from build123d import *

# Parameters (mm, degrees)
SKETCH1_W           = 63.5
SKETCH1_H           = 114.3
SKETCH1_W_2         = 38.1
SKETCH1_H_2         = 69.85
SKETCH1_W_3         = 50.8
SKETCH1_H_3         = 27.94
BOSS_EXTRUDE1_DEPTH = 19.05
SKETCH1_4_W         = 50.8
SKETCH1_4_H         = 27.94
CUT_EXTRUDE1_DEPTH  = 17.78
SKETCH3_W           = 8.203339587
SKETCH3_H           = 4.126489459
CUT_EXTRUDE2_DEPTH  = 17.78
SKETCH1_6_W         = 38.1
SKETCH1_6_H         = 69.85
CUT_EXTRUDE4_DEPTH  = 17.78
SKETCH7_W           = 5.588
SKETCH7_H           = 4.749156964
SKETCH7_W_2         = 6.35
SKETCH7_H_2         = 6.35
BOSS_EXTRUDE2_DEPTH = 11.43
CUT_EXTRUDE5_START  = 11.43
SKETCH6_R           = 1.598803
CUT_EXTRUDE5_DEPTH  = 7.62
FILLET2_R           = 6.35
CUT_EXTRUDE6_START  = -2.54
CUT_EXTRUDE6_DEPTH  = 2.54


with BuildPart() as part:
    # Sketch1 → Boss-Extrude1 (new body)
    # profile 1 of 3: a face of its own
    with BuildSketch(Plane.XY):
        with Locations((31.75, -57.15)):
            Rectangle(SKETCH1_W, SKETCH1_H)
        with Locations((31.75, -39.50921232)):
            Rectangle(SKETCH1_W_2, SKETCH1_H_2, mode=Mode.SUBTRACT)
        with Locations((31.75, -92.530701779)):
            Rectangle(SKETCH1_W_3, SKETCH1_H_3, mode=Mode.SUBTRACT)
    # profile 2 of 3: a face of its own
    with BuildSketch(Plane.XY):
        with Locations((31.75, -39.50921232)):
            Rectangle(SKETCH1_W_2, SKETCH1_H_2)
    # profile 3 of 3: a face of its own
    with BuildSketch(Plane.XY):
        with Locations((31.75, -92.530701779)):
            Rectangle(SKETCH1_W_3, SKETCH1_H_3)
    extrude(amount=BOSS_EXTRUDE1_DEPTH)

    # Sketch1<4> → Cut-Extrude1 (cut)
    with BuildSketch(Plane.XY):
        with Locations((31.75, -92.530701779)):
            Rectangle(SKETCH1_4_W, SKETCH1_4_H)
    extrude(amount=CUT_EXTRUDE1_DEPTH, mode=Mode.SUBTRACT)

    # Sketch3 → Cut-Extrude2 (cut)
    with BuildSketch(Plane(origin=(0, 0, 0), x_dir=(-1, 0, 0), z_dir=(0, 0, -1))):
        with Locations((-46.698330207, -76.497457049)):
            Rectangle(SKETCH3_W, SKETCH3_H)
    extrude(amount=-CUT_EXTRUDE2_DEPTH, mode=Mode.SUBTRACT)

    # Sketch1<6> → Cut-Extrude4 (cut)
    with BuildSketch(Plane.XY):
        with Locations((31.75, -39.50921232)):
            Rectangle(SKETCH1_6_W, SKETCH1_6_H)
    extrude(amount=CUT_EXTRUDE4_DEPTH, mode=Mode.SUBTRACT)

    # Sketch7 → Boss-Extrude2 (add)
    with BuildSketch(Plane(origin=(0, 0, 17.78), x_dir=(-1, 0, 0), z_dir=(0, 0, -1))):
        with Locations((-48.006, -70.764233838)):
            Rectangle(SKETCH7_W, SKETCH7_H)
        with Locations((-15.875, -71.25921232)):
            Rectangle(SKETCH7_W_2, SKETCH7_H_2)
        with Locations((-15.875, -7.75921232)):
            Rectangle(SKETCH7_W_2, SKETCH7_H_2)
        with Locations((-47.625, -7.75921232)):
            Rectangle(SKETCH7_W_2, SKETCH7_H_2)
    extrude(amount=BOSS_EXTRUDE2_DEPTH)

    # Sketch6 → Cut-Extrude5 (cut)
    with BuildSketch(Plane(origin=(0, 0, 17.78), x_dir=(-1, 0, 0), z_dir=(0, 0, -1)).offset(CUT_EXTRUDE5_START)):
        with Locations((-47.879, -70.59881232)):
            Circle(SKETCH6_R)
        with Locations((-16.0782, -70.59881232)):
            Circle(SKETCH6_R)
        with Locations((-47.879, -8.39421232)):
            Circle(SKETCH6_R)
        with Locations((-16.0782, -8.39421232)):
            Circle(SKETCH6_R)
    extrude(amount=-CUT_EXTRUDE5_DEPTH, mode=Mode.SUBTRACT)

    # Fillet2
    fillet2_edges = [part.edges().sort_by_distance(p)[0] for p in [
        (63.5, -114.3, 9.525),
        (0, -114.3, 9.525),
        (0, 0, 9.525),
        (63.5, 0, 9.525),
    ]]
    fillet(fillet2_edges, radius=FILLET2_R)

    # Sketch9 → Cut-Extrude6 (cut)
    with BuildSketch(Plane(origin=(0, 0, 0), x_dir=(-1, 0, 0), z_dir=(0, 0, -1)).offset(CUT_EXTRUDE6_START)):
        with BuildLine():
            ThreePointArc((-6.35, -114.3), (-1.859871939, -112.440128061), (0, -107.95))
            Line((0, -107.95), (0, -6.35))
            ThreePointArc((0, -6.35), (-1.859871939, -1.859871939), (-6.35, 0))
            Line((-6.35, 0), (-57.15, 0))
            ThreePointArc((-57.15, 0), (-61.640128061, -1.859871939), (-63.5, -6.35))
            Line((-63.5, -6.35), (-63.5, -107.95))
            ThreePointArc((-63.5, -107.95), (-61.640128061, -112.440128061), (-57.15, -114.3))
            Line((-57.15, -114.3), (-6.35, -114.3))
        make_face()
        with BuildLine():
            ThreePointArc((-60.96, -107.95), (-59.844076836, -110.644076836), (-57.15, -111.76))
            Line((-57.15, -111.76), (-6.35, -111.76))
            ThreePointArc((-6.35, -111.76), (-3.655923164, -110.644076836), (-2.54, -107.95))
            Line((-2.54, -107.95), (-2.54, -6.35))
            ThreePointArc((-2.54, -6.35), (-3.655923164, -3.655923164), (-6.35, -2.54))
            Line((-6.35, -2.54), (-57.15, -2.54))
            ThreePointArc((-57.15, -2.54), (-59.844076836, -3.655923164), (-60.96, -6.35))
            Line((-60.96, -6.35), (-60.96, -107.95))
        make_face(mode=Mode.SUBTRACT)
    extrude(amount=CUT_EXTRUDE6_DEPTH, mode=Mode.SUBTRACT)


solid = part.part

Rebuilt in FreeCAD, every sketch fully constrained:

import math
import FreeCAD as App
import Part
import Sketcher

V = App.Vector
Q = App.Units.Quantity


def edges_at(feature, points):
    """Names of the edges that pass closest to the given points."""
    edges = feature.Shape.Edges
    near = lambda p: min(range(len(edges)), key=lambda i: edges[i].distToShape(Part.Vertex(*p))[0])
    return sorted({f"Edge{near(p) + 1}" for p in points})

doc = App.newDocument("Part")
params = doc.addObject("Spreadsheet::Sheet", "Params")
for row, (alias, value) in enumerate([
    ("sketch1_width", "2.5 in"),
    ("sketch1_height", "4.5 in"),
    ("pad1_length", "0.75 in"),
    ("sketch2_width", "2 in"),
    ("sketch2_height", "1.1 in"),
    ("pocket1_length", "0.7 in"),
    ("pocket2_length", "0.7 in"),
    ("sketch4_width", "1.5 in"),
    ("sketch4_height", "2.75 in"),
    ("pocket3_length", "0.7 in"),
    ("sketch5_width", "0.22 in"),
    ("sketch5_width2", "0.25 in"),
    ("pad2_length", "0.45 in"),
    ("pocket4_length", "0.3 in"),
    ("fillet_radius", "0.25 in"),
    ("sketch7_width", "2 in"),
    ("sketch7_height", "4 in"),
    ("sketch7_radius", "0.25 in"),
    ("sketch7_radius2", "0.15 in"),
    ("pocket5_length", "0.1 in"),
], start=1):
    params.set(f"A{row}", alias)
    params.set(f"B{row}", "=" + value)
    params.setAlias(f"B{row}", alias)

body = doc.addObject("PartDesign::Body", "Body")

# Sketch on XY plane
sketch1 = doc.addObject("Sketcher::SketchObject", "Sketch")
body.addObject(sketch1)
sketch1.AttachmentSupport = (doc.XY_Plane, [""])
sketch1.MapMode = "FlatFace"
sketch1.addGeometry([
    Part.LineSegment(V(0, 0, 0), V(0, -114.3, 0)),
    Part.LineSegment(V(0, -114.3, 0), V(63.5, -114.3, 0)),
    Part.LineSegment(V(63.5, -114.3, 0), V(63.5, 0, 0)),
    Part.LineSegment(V(63.5, 0, 0), V(0, 0, 0)),
], False)
sketch1.addConstraint([
    Sketcher.Constraint("Coincident", 0, 2, 1, 1),
    Sketcher.Constraint("Coincident", 1, 2, 2, 1),
    Sketcher.Constraint("Coincident", 2, 2, 3, 1),
    Sketcher.Constraint("Coincident", 3, 2, 0, 1),
    Sketcher.Constraint("Vertical", 0),
    Sketcher.Constraint("Horizontal", 1),
    Sketcher.Constraint("Vertical", 2),
    Sketcher.Constraint("Horizontal", 3),
    Sketcher.Constraint("Coincident", 3, 2, -1, 1),
    Sketcher.Constraint("DistanceX", 1, 1, 1, 2, Q("2.5 in")),
    Sketcher.Constraint("DistanceY", 0, 2, 0, 1, Q("4.5 in")),
])
sketch1.setExpression("Constraints[9]", "Params.sketch1_width")
sketch1.setExpression("Constraints[10]", "Params.sketch1_height")
pad1 = doc.addObject("PartDesign::Pad", "Pad")
body.addObject(pad1)
pad1.Profile = sketch1
pad1.setExpression("Length", "Params.pad1_length")

# Sketch on XY plane
sketch2 = doc.addObject("Sketcher::SketchObject", "Sketch001")
body.addObject(sketch2)
sketch2.AttachmentSupport = (doc.XY_Plane, [""])
sketch2.MapMode = "FlatFace"
sketch2.addGeometry([
    Part.LineSegment(V(6.35, -78.560702, 0), V(6.35, -106.500702, 0)),
    Part.LineSegment(V(6.35, -106.500702, 0), V(57.15, -106.500702, 0)),
    Part.LineSegment(V(57.15, -106.500702, 0), V(57.15, -78.560702, 0)),
    Part.LineSegment(V(57.15, -78.560702, 0), V(6.35, -78.560702, 0)),
], False)
sketch2.addConstraint([
    Sketcher.Constraint("Coincident", 0, 2, 1, 1),
    Sketcher.Constraint("Coincident", 1, 2, 2, 1),
    Sketcher.Constraint("Coincident", 2, 2, 3, 1),
    Sketcher.Constraint("Coincident", 3, 2, 0, 1),
    Sketcher.Constraint("Vertical", 0),
    Sketcher.Constraint("Horizontal", 1),
    Sketcher.Constraint("Vertical", 2),
    Sketcher.Constraint("Horizontal", 3),
    Sketcher.Constraint("DistanceX", 1, 1, 1, 2, Q("2 in")),
    Sketcher.Constraint("DistanceY", 0, 2, 0, 1, Q("1.1 in")),
    Sketcher.Constraint("DistanceX", -1, 1, 0, 2, Q("0.25 in")),
    Sketcher.Constraint("DistanceY", 0, 2, -1, 1, Q("106.500702 mm")),
])
sketch2.setExpression("Constraints[8]", "Params.sketch2_width")
sketch2.setExpression("Constraints[9]", "Params.sketch2_height")
pocket1 = doc.addObject("PartDesign::Pocket", "Pocket")
body.addObject(pocket1)
pocket1.Profile = sketch2
pocket1.setExpression("Length", "Params.pocket1_length")
pocket1.Reversed = True

# Sketch on XY plane
sketch3 = doc.addObject("Sketcher::SketchObject", "Sketch002")
body.addObject(sketch3)
sketch3.AttachmentSupport = (doc.XY_Plane, [""])
sketch3.MapMode = "FlatFace"
sketch3.addGeometry([
    Part.LineSegment(V(50.8, -74.434212, 0), V(50.8, -78.560702, 0)),
    Part.LineSegment(V(50.8, -78.560702, 0), V(42.59666, -78.560702, 0)),
    Part.LineSegment(V(42.59666, -78.560702, 0), V(42.59666, -74.434212, 0)),
    Part.LineSegment(V(42.59666, -74.434212, 0), V(50.8, -74.434212, 0)),
], False)
sketch3.addConstraint([
    Sketcher.Constraint("Coincident", 0, 2, 1, 1),
    Sketcher.Constraint("Coincident", 1, 2, 2, 1),
    Sketcher.Constraint("Coincident", 2, 2, 3, 1),
    Sketcher.Constraint("Coincident", 3, 2, 0, 1),
    Sketcher.Constraint("Vertical", 0),
    Sketcher.Constraint("Horizontal", 1),
    Sketcher.Constraint("Vertical", 2),
    Sketcher.Constraint("Horizontal", 3),
    Sketcher.Constraint("DistanceX", -1, 1, 0, 2, Q("2 in")),
    Sketcher.Constraint("DistanceX", 1, 2, 1, 1, Q("8.20334 mm")),
    Sketcher.Constraint("DistanceY", 0, 2, 0, 1, Q("4.126489 mm")),
    Sketcher.Constraint("DistanceY", 0, 2, -1, 1, Q("78.560702 mm")),
])
pocket2 = doc.addObject("PartDesign::Pocket", "Pocket001")
body.addObject(pocket2)
pocket2.Profile = sketch3
pocket2.setExpression("Length", "Params.pocket2_length")
pocket2.Reversed = True

# Sketch on XY plane
sketch4 = doc.addObject("Sketcher::SketchObject", "Sketch003")
body.addObject(sketch4)
sketch4.AttachmentSupport = (doc.XY_Plane, [""])
sketch4.MapMode = "FlatFace"
sketch4.addGeometry([
    Part.LineSegment(V(12.7, -4.584212, 0), V(12.7, -74.434212, 0)),
    Part.LineSegment(V(12.7, -74.434212, 0), V(50.8, -74.434212, 0)),
    Part.LineSegment(V(50.8, -74.434212, 0), V(50.8, -4.584212, 0)),
    Part.LineSegment(V(50.8, -4.584212, 0), V(12.7, -4.584212, 0)),
], False)
sketch4.addConstraint([
    Sketcher.Constraint("Coincident", 0, 2, 1, 1),
    Sketcher.Constraint("Coincident", 1, 2, 2, 1),
    Sketcher.Constraint("Coincident", 2, 2, 3, 1),
    Sketcher.Constraint("Coincident", 3, 2, 0, 1),
    Sketcher.Constraint("Vertical", 0),
    Sketcher.Constraint("Horizontal", 1),
    Sketcher.Constraint("Vertical", 2),
    Sketcher.Constraint("Horizontal", 3),
    Sketcher.Constraint("DistanceX", 1, 1, 1, 2, Q("1.5 in")),
    Sketcher.Constraint("DistanceX", -1, 1, 1, 2, Q("2 in")),
    Sketcher.Constraint("DistanceY", 0, 2, 0, 1, Q("2.75 in")),
    Sketcher.Constraint("DistanceY", 0, 2, -1, 1, Q("74.434212 mm")),
])
sketch4.setExpression("Constraints[8]", "Params.sketch4_width")
sketch4.setExpression("Constraints[10]", "Params.sketch4_height")
pocket3 = doc.addObject("PartDesign::Pocket", "Pocket002")
body.addObject(pocket3)
pocket3.Profile = sketch4
pocket3.setExpression("Length", "Params.pocket3_length")
pocket3.Reversed = True

# Sketch on XY plane
sketch5 = doc.addObject("Sketcher::SketchObject", "Sketch004")
body.addObject(sketch5)
sketch5.AttachmentSupport = (doc.XY_Plane, [""])
sketch5.MapMode = "FlatFace"
sketch5.AttachmentOffset = App.Placement(V(0, 0, 0.7 * 25.4), App.Rotation())
sketch5.addGeometry([
    Part.LineSegment(V(50.8, -68.389655, 0), V(50.8, -73.138812, 0)),  # 0
    Part.LineSegment(V(50.8, -73.138812, 0), V(45.212, -73.138812, 0)),  # 1
    Part.LineSegment(V(45.212, -73.138812, 0), V(45.212, -68.389655, 0)),  # 2
    Part.LineSegment(V(45.212, -68.389655, 0), V(50.8, -68.389655, 0)),  # 3
    Part.LineSegment(V(19.05, -68.084212, 0), V(19.05, -74.434212, 0)),  # 4
    Part.LineSegment(V(19.05, -74.434212, 0), V(12.7, -74.434212, 0)),  # 5
    Part.LineSegment(V(12.7, -74.434212, 0), V(12.7, -68.084212, 0)),  # 6
    Part.LineSegment(V(12.7, -68.084212, 0), V(19.05, -68.084212, 0)),  # 7
    Part.LineSegment(V(19.05, -4.584212, 0), V(19.05, -10.934212, 0)),  # 8
    Part.LineSegment(V(19.05, -10.934212, 0), V(12.7, -10.934212, 0)),  # 9
    Part.LineSegment(V(12.7, -10.934212, 0), V(12.7, -4.584212, 0)),  # 10
    Part.LineSegment(V(12.7, -4.584212, 0), V(19.05, -4.584212, 0)),  # 11
    Part.LineSegment(V(50.8, -4.584212, 0), V(50.8, -10.934212, 0)),  # 12
    Part.LineSegment(V(50.8, -10.934212, 0), V(44.45, -10.934212, 0)),  # 13
    Part.LineSegment(V(44.45, -10.934212, 0), V(44.45, -4.584212, 0)),  # 14
    Part.LineSegment(V(44.45, -4.584212, 0), V(50.8, -4.584212, 0)),  # 15
], False)
sketch5.addConstraint([
    Sketcher.Constraint("Coincident", 0, 2, 1, 1),
    Sketcher.Constraint("Coincident", 1, 2, 2, 1),
    Sketcher.Constraint("Coincident", 2, 2, 3, 1),
    Sketcher.Constraint("Coincident", 3, 2, 0, 1),
    Sketcher.Constraint("Coincident", 4, 2, 5, 1),
    Sketcher.Constraint("Coincident", 5, 2, 6, 1),
    Sketcher.Constraint("Coincident", 6, 2, 7, 1),
    Sketcher.Constraint("Coincident", 7, 2, 4, 1),
    Sketcher.Constraint("Coincident", 8, 2, 9, 1),
    Sketcher.Constraint("Coincident", 9, 2, 10, 1),
    Sketcher.Constraint("Coincident", 10, 2, 11, 1),
    Sketcher.Constraint("Coincident", 11, 2, 8, 1),
    Sketcher.Constraint("Coincident", 12, 2, 13, 1),
    Sketcher.Constraint("Coincident", 13, 2, 14, 1),
    Sketcher.Constraint("Coincident", 14, 2, 15, 1),
    Sketcher.Constraint("Coincident", 15, 2, 12, 1),
    Sketcher.Constraint("Vertical", 0),
    Sketcher.Constraint("Horizontal", 1),
    Sketcher.Constraint("Vertical", 2),
    Sketcher.Constraint("Horizontal", 3),
    Sketcher.Constraint("Vertical", 4),
    Sketcher.Constraint("Horizontal", 5),
    Sketcher.Constraint("Vertical", 6),
    Sketcher.Constraint("Horizontal", 7),
    Sketcher.Constraint("Vertical", 8),
    Sketcher.Constraint("Horizontal", 9),
    Sketcher.Constraint("Vertical", 10),
    Sketcher.Constraint("Horizontal", 11),
    Sketcher.Constraint("Vertical", 12),
    Sketcher.Constraint("Horizontal", 13),
    Sketcher.Constraint("Vertical", 14),
    Sketcher.Constraint("Horizontal", 15),
    Sketcher.Constraint("Horizontal", 9, 2, 12, 2),
    Sketcher.Constraint("Horizontal", 11, 2, 14, 2),
    Sketcher.Constraint("Vertical", 7, 2, 8, 2),
    Sketcher.Constraint("Vertical", 6, 2, 9, 2),
    Sketcher.Constraint("Vertical", 3, 2, 12, 2),
    Sketcher.Constraint("Equal", 11, 13),
    Sketcher.Constraint("Equal", 15, 4),
    Sketcher.Constraint("Equal", 6, 8),
    Sketcher.Constraint("DistanceX", -1, 1, 0, 2, Q("2 in")),
    Sketcher.Constraint("DistanceX", 8, 2, 13, 2, Q("1 in")),
    Sketcher.Constraint("DistanceX", 1, 2, 1, 1, Q("0.22 in")),
    Sketcher.Constraint("DistanceX", 5, 2, 5, 1, Q("0.25 in")),
    Sketcher.Constraint("DistanceY", 4, 2, 8, 2, Q("2.5 in")),
    Sketcher.Constraint("DistanceY", 4, 2, 1, 2, Q("0.051 in")),
    Sketcher.Constraint("DistanceY", 0, 2, 0, 1, Q("4.749157 mm")),
    Sketcher.Constraint("DistanceY", 0, 2, -1, 1, Q("73.138812 mm")),
])
sketch5.setExpression("Constraints[42]", "Params.sketch5_width")
sketch5.setExpression("Constraints[43]", "Params.sketch5_width2")
pad2 = doc.addObject("PartDesign::Pad", "Pad001")
body.addObject(pad2)
pad2.Profile = sketch5
pad2.setExpression("Length", "Params.pad2_length")
pad2.Reversed = True

# Sketch on XY plane
sketch6 = doc.addObject("Sketcher::SketchObject", "Sketch005")
body.addObject(sketch6)
sketch6.AttachmentSupport = (doc.XY_Plane, [""])
sketch6.MapMode = "FlatFace"
sketch6.AttachmentOffset = App.Placement(V(0, 0, 0.25 * 25.4), App.Rotation())
sketch6.addGeometry([
    Part.Circle(V(47.879, -70.598812, 0), V(0, 0, 1), 1.598803),
    Part.Circle(V(16.0782, -70.598812, 0), V(0, 0, 1), 1.598803),
    Part.Circle(V(47.879, -8.394212, 0), V(0, 0, 1), 1.598803),
    Part.Circle(V(16.0782, -8.394212, 0), V(0, 0, 1), 1.598803),
], False)
sketch6.addConstraint([
    Sketcher.Constraint("Equal", 0, 1),
    Sketcher.Constraint("Equal", 1, 2),
    Sketcher.Constraint("Equal", 2, 3),
    Sketcher.Constraint("Horizontal", 0, 3, 1, 3),
    Sketcher.Constraint("Horizontal", 2, 3, 3, 3),
    Sketcher.Constraint("Vertical", 0, 3, 2, 3),
    Sketcher.Constraint("Vertical", 1, 3, 3, 3),
    Sketcher.Constraint("DistanceX", -1, 1, 0, 3, Q("1.885 in")),
    Sketcher.Constraint("DistanceX", -1, 1, 1, 3, Q("0.633 in")),
    Sketcher.Constraint("DistanceY", 0, 3, 2, 3, Q("2.449 in")),
    Sketcher.Constraint("Diameter", 0, Q("3.197606 mm")),
    Sketcher.Constraint("DistanceY", 0, 3, -1, 1, Q("70.598812 mm")),
])
pocket4 = doc.addObject("PartDesign::Pocket", "Pocket003")
body.addObject(pocket4)
pocket4.Profile = sketch6
pocket4.setExpression("Length", "Params.pocket4_length")
pocket4.Reversed = True
doc.recompute()

fillet = doc.addObject("PartDesign::Fillet", "Fillet")
body.addObject(fillet)
fillet.Base = (pocket4, edges_at(pocket4, [
    (63.5, -114.3, 9.525),
    (0, -114.3, 9.525),
    (0, 0, 9.525),
    (63.5, 0, 9.525),
]))
fillet.setExpression("Radius", "Params.fillet_radius")

# Sketch on XY plane
sketch7 = doc.addObject("Sketcher::SketchObject", "Sketch006")
body.addObject(sketch7)
sketch7.AttachmentSupport = (doc.XY_Plane, [""])
sketch7.MapMode = "FlatFace"
sketch7.AttachmentOffset = App.Placement(V(0, 0, 0.1 * 25.4), App.Rotation())
sketch7.addGeometry([
    Part.ArcOfCircle(Part.Circle(V(6.35, -107.95, 0), V(0, 0, 1), 6.35), math.radians(180), math.radians(270)),  # 0
    Part.LineSegment(V(0, -107.95, 0), V(0, -6.35, 0)),  # 1
    Part.ArcOfCircle(Part.Circle(V(6.35, -6.35, 0), V(0, 0, 1), 6.35), math.radians(90), math.radians(180)),  # 2
    Part.LineSegment(V(6.35, 0, 0), V(57.15, 0, 0)),  # 3
    Part.ArcOfCircle(Part.Circle(V(57.15, -6.35, 0), V(0, 0, 1), 6.35), math.radians(0), math.radians(90)),  # 4
    Part.LineSegment(V(63.5, -6.35, 0), V(63.5, -107.95, 0)),  # 5
    Part.ArcOfCircle(Part.Circle(V(57.15, -107.95, 0), V(0, 0, 1), 6.35), math.radians(-90), math.radians(0)),  # 6
    Part.LineSegment(V(57.15, -114.3, 0), V(6.35, -114.3, 0)),  # 7
    Part.ArcOfCircle(Part.Circle(V(57.15, -107.95, 0), V(0, 0, 1), 3.81), math.radians(-90), math.radians(0)),  # 8
    Part.LineSegment(V(60.96, -107.95, 0), V(60.96, -6.35, 0)),  # 9
    Part.ArcOfCircle(Part.Circle(V(57.15, -6.35, 0), V(0, 0, 1), 3.81), math.radians(0), math.radians(90)),  # 10
    Part.LineSegment(V(57.15, -2.54, 0), V(6.35, -2.54, 0)),  # 11
    Part.ArcOfCircle(Part.Circle(V(6.35, -6.35, 0), V(0, 0, 1), 3.81), math.radians(90), math.radians(180)),  # 12
    Part.LineSegment(V(2.54, -6.35, 0), V(2.54, -107.95, 0)),  # 13
    Part.ArcOfCircle(Part.Circle(V(6.35, -107.95, 0), V(0, 0, 1), 3.81), math.radians(-180), math.radians(-90)),  # 14
    Part.LineSegment(V(6.35, -111.76, 0), V(57.15, -111.76, 0)),  # 15
], False)
sketch7.addConstraint([
    Sketcher.Constraint("Tangent", 0, 1, 1, 1),
    Sketcher.Constraint("Tangent", 1, 2, 2, 2),
    Sketcher.Constraint("Tangent", 2, 1, 3, 1),
    Sketcher.Constraint("Tangent", 3, 2, 4, 2),
    Sketcher.Constraint("Tangent", 4, 1, 5, 1),
    Sketcher.Constraint("Tangent", 5, 2, 6, 2),
    Sketcher.Constraint("Tangent", 6, 1, 7, 1),
    Sketcher.Constraint("Tangent", 7, 2, 0, 2),
    Sketcher.Constraint("Tangent", 8, 2, 9, 1),
    Sketcher.Constraint("Tangent", 9, 2, 10, 1),
    Sketcher.Constraint("Tangent", 10, 2, 11, 1),
    Sketcher.Constraint("Tangent", 11, 2, 12, 1),
    Sketcher.Constraint("Tangent", 12, 2, 13, 1),
    Sketcher.Constraint("Tangent", 13, 2, 14, 1),
    Sketcher.Constraint("Tangent", 14, 2, 15, 1),
    Sketcher.Constraint("Tangent", 15, 2, 8, 1),
    Sketcher.Constraint("Vertical", 1),
    Sketcher.Constraint("Horizontal", 3),
    Sketcher.Constraint("Vertical", 5),
    Sketcher.Constraint("Horizontal", 7),
    Sketcher.Constraint("Vertical", 9),
    Sketcher.Constraint("Horizontal", 11),
    Sketcher.Constraint("Vertical", 13),
    Sketcher.Constraint("Horizontal", 15),
    Sketcher.Constraint("Coincident", 8, 3, 6, 3),
    Sketcher.Constraint("Coincident", 10, 3, 4, 3),
    Sketcher.Constraint("Coincident", 12, 3, 2, 3),
    Sketcher.Constraint("Equal", 0, 2),
    Sketcher.Constraint("Equal", 2, 4),
    Sketcher.Constraint("Equal", 4, 6),
    Sketcher.Constraint("Equal", 12, 14),
    Sketcher.Constraint("PointOnObject", 0, 1, -2),
    Sketcher.Constraint("PointOnObject", 2, 1, -1),
    Sketcher.Constraint("DistanceX", 3, 1, 3, 2, Q("2 in")),
    Sketcher.Constraint("DistanceY", 1, 1, 1, 2, Q("4 in")),
    Sketcher.Constraint("Radius", 0, Q("0.25 in")),
    Sketcher.Constraint("Radius", 8, Q("0.15 in")),
])
sketch7.setExpression("Constraints[33]", "Params.sketch7_width")
sketch7.setExpression("Constraints[34]", "Params.sketch7_height")
sketch7.setExpression("Constraints[35]", "Params.sketch7_radius")
sketch7.setExpression("Constraints[36]", "Params.sketch7_radius2")
pocket5 = doc.addObject("PartDesign::Pocket", "Pocket004")
body.addObject(pocket5)
pocket5.Profile = sketch7
pocket5.setExpression("Length", "Params.pocket5_length")

doc.recompute()
